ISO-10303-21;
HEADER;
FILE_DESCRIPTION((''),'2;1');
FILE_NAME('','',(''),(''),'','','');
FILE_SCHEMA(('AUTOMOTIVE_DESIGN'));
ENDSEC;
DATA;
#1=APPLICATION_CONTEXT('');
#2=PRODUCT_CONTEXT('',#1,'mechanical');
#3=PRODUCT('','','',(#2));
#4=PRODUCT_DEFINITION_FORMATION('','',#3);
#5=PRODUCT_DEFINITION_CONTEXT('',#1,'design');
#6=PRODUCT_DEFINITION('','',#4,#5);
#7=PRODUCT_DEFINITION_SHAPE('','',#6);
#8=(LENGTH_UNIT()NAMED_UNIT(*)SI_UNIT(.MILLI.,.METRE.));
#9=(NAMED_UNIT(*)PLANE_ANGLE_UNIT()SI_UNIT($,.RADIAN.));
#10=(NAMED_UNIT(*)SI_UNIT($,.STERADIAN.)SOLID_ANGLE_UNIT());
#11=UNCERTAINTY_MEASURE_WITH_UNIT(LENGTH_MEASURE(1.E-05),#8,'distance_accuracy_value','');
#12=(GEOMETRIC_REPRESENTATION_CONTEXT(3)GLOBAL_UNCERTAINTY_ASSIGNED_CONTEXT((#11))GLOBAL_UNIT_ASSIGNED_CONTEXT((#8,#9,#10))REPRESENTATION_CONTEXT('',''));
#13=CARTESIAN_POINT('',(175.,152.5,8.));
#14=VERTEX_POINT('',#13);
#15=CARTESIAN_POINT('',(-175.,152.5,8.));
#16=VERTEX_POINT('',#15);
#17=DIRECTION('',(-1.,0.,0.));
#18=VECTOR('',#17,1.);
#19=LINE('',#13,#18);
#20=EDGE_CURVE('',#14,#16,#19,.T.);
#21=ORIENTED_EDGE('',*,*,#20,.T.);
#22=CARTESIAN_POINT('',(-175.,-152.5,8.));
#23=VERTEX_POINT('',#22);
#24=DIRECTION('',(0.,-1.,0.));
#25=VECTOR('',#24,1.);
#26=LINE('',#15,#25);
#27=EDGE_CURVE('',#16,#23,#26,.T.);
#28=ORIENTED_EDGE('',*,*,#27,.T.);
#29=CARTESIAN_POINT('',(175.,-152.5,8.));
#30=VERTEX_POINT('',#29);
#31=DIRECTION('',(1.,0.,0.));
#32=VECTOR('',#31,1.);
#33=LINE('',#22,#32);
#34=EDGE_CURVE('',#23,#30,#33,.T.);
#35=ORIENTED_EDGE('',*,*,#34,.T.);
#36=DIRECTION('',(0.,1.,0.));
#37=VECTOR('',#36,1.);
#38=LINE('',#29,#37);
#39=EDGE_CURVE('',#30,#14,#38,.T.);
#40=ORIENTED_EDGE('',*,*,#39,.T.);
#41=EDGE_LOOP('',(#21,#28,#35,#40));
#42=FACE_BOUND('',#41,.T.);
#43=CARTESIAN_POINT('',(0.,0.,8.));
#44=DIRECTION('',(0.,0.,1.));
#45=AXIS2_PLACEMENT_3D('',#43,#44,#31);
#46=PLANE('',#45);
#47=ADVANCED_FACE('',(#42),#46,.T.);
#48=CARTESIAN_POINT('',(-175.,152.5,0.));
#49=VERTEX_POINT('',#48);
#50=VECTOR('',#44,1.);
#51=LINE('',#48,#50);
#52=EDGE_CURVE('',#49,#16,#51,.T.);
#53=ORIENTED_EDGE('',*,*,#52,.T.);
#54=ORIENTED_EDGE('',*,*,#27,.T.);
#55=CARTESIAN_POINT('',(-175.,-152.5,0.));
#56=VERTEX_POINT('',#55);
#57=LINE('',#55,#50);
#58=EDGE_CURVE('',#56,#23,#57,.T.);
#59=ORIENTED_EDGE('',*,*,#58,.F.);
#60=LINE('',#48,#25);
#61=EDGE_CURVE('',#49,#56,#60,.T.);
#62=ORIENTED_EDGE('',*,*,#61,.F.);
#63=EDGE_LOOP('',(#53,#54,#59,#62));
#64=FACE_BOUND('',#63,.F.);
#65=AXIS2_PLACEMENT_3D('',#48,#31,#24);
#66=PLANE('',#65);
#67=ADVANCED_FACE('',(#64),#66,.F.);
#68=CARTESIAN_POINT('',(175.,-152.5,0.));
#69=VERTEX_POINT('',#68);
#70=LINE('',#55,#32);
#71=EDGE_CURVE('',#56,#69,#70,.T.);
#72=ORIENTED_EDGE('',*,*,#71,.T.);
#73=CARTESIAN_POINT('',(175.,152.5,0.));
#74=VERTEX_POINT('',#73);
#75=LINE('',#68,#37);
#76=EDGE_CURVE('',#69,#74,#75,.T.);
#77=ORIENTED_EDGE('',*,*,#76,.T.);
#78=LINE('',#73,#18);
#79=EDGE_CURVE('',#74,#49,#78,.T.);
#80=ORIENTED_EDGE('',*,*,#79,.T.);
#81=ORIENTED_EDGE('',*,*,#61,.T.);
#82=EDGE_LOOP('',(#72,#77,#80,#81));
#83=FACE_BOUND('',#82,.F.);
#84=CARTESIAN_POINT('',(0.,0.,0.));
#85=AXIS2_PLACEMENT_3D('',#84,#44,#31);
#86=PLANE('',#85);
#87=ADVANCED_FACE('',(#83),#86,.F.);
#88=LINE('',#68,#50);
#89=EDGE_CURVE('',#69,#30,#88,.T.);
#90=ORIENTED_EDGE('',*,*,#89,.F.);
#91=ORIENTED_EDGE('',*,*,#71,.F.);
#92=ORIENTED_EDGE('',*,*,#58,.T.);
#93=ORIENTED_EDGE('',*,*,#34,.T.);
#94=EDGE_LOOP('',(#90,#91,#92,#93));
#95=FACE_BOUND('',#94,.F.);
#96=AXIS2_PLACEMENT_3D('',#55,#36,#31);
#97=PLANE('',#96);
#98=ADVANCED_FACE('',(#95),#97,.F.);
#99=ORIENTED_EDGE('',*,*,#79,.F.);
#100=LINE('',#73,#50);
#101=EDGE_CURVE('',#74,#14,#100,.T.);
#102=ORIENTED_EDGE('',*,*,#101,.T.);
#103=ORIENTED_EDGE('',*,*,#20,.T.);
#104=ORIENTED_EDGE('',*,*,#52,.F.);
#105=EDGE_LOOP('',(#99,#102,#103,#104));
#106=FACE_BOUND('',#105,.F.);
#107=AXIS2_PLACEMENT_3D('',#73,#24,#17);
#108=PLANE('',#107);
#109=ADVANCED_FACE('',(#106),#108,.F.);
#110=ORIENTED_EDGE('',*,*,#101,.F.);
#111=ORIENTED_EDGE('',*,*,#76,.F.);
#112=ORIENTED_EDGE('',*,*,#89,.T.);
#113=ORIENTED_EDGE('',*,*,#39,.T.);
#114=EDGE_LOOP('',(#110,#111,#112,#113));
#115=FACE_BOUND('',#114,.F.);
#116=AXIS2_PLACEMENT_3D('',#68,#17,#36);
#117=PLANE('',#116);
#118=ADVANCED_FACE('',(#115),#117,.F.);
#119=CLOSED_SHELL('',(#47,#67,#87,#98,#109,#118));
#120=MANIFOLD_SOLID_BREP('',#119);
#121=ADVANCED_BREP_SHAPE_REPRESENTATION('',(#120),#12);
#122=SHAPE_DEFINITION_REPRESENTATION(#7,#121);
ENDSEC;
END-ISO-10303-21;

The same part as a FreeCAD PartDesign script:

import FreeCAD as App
import Part
import Sketcher
Q = App.Units.Quantity


def add_polygon(sketch, points):
    """Adds a closed chain of lines whose ends are joined by coincident constraints."""
    first, n = sketch.GeometryCount, len(points)
    for a, b in zip(points, points[1:] + points[:1]):
        sketch.addGeometry(Part.LineSegment(App.Vector(*a, 0), App.Vector(*b, 0)), False)
    for i in range(n):
        sketch.addConstraint(Sketcher.Constraint("Coincident", first + i, 2, first + (i + 1) % n, 1))

doc = App.newDocument("Part")
body = doc.addObject("PartDesign::Body", "Body")

# Sketch on XY plane
sketch1 = doc.addObject("Sketcher::SketchObject", "Sketch")
body.addObject(sketch1)
sketch1.AttachmentSupport = (doc.XY_Plane, [""])
sketch1.MapMode = "FlatFace"
add_polygon(sketch1, [(-175, 152.5), (-175, -152.5), (175, -152.5), (175, 152.5)])  # lines 0-3
sketch1.addConstraint(Sketcher.Constraint("Vertical", 0))
sketch1.addConstraint(Sketcher.Constraint("Horizontal", 1))
sketch1.addConstraint(Sketcher.Constraint("Vertical", 2))
sketch1.addConstraint(Sketcher.Constraint("Horizontal", 3))
sketch1.addConstraint(Sketcher.Constraint("Symmetric", 0, 2, 2, 2, -1, 1))
sketch1.addConstraint(Sketcher.Constraint("DistanceX", 1, 1, 1, 2, Q("350 mm")))
sketch1.addConstraint(Sketcher.Constraint("DistanceY", 0, 2, 0, 1, Q("305 mm")))
pad1 = doc.addObject("PartDesign::Pad", "Pad")
body.addObject(pad1)
pad1.Profile = sketch1
pad1.Length = 8

doc.recompute()
